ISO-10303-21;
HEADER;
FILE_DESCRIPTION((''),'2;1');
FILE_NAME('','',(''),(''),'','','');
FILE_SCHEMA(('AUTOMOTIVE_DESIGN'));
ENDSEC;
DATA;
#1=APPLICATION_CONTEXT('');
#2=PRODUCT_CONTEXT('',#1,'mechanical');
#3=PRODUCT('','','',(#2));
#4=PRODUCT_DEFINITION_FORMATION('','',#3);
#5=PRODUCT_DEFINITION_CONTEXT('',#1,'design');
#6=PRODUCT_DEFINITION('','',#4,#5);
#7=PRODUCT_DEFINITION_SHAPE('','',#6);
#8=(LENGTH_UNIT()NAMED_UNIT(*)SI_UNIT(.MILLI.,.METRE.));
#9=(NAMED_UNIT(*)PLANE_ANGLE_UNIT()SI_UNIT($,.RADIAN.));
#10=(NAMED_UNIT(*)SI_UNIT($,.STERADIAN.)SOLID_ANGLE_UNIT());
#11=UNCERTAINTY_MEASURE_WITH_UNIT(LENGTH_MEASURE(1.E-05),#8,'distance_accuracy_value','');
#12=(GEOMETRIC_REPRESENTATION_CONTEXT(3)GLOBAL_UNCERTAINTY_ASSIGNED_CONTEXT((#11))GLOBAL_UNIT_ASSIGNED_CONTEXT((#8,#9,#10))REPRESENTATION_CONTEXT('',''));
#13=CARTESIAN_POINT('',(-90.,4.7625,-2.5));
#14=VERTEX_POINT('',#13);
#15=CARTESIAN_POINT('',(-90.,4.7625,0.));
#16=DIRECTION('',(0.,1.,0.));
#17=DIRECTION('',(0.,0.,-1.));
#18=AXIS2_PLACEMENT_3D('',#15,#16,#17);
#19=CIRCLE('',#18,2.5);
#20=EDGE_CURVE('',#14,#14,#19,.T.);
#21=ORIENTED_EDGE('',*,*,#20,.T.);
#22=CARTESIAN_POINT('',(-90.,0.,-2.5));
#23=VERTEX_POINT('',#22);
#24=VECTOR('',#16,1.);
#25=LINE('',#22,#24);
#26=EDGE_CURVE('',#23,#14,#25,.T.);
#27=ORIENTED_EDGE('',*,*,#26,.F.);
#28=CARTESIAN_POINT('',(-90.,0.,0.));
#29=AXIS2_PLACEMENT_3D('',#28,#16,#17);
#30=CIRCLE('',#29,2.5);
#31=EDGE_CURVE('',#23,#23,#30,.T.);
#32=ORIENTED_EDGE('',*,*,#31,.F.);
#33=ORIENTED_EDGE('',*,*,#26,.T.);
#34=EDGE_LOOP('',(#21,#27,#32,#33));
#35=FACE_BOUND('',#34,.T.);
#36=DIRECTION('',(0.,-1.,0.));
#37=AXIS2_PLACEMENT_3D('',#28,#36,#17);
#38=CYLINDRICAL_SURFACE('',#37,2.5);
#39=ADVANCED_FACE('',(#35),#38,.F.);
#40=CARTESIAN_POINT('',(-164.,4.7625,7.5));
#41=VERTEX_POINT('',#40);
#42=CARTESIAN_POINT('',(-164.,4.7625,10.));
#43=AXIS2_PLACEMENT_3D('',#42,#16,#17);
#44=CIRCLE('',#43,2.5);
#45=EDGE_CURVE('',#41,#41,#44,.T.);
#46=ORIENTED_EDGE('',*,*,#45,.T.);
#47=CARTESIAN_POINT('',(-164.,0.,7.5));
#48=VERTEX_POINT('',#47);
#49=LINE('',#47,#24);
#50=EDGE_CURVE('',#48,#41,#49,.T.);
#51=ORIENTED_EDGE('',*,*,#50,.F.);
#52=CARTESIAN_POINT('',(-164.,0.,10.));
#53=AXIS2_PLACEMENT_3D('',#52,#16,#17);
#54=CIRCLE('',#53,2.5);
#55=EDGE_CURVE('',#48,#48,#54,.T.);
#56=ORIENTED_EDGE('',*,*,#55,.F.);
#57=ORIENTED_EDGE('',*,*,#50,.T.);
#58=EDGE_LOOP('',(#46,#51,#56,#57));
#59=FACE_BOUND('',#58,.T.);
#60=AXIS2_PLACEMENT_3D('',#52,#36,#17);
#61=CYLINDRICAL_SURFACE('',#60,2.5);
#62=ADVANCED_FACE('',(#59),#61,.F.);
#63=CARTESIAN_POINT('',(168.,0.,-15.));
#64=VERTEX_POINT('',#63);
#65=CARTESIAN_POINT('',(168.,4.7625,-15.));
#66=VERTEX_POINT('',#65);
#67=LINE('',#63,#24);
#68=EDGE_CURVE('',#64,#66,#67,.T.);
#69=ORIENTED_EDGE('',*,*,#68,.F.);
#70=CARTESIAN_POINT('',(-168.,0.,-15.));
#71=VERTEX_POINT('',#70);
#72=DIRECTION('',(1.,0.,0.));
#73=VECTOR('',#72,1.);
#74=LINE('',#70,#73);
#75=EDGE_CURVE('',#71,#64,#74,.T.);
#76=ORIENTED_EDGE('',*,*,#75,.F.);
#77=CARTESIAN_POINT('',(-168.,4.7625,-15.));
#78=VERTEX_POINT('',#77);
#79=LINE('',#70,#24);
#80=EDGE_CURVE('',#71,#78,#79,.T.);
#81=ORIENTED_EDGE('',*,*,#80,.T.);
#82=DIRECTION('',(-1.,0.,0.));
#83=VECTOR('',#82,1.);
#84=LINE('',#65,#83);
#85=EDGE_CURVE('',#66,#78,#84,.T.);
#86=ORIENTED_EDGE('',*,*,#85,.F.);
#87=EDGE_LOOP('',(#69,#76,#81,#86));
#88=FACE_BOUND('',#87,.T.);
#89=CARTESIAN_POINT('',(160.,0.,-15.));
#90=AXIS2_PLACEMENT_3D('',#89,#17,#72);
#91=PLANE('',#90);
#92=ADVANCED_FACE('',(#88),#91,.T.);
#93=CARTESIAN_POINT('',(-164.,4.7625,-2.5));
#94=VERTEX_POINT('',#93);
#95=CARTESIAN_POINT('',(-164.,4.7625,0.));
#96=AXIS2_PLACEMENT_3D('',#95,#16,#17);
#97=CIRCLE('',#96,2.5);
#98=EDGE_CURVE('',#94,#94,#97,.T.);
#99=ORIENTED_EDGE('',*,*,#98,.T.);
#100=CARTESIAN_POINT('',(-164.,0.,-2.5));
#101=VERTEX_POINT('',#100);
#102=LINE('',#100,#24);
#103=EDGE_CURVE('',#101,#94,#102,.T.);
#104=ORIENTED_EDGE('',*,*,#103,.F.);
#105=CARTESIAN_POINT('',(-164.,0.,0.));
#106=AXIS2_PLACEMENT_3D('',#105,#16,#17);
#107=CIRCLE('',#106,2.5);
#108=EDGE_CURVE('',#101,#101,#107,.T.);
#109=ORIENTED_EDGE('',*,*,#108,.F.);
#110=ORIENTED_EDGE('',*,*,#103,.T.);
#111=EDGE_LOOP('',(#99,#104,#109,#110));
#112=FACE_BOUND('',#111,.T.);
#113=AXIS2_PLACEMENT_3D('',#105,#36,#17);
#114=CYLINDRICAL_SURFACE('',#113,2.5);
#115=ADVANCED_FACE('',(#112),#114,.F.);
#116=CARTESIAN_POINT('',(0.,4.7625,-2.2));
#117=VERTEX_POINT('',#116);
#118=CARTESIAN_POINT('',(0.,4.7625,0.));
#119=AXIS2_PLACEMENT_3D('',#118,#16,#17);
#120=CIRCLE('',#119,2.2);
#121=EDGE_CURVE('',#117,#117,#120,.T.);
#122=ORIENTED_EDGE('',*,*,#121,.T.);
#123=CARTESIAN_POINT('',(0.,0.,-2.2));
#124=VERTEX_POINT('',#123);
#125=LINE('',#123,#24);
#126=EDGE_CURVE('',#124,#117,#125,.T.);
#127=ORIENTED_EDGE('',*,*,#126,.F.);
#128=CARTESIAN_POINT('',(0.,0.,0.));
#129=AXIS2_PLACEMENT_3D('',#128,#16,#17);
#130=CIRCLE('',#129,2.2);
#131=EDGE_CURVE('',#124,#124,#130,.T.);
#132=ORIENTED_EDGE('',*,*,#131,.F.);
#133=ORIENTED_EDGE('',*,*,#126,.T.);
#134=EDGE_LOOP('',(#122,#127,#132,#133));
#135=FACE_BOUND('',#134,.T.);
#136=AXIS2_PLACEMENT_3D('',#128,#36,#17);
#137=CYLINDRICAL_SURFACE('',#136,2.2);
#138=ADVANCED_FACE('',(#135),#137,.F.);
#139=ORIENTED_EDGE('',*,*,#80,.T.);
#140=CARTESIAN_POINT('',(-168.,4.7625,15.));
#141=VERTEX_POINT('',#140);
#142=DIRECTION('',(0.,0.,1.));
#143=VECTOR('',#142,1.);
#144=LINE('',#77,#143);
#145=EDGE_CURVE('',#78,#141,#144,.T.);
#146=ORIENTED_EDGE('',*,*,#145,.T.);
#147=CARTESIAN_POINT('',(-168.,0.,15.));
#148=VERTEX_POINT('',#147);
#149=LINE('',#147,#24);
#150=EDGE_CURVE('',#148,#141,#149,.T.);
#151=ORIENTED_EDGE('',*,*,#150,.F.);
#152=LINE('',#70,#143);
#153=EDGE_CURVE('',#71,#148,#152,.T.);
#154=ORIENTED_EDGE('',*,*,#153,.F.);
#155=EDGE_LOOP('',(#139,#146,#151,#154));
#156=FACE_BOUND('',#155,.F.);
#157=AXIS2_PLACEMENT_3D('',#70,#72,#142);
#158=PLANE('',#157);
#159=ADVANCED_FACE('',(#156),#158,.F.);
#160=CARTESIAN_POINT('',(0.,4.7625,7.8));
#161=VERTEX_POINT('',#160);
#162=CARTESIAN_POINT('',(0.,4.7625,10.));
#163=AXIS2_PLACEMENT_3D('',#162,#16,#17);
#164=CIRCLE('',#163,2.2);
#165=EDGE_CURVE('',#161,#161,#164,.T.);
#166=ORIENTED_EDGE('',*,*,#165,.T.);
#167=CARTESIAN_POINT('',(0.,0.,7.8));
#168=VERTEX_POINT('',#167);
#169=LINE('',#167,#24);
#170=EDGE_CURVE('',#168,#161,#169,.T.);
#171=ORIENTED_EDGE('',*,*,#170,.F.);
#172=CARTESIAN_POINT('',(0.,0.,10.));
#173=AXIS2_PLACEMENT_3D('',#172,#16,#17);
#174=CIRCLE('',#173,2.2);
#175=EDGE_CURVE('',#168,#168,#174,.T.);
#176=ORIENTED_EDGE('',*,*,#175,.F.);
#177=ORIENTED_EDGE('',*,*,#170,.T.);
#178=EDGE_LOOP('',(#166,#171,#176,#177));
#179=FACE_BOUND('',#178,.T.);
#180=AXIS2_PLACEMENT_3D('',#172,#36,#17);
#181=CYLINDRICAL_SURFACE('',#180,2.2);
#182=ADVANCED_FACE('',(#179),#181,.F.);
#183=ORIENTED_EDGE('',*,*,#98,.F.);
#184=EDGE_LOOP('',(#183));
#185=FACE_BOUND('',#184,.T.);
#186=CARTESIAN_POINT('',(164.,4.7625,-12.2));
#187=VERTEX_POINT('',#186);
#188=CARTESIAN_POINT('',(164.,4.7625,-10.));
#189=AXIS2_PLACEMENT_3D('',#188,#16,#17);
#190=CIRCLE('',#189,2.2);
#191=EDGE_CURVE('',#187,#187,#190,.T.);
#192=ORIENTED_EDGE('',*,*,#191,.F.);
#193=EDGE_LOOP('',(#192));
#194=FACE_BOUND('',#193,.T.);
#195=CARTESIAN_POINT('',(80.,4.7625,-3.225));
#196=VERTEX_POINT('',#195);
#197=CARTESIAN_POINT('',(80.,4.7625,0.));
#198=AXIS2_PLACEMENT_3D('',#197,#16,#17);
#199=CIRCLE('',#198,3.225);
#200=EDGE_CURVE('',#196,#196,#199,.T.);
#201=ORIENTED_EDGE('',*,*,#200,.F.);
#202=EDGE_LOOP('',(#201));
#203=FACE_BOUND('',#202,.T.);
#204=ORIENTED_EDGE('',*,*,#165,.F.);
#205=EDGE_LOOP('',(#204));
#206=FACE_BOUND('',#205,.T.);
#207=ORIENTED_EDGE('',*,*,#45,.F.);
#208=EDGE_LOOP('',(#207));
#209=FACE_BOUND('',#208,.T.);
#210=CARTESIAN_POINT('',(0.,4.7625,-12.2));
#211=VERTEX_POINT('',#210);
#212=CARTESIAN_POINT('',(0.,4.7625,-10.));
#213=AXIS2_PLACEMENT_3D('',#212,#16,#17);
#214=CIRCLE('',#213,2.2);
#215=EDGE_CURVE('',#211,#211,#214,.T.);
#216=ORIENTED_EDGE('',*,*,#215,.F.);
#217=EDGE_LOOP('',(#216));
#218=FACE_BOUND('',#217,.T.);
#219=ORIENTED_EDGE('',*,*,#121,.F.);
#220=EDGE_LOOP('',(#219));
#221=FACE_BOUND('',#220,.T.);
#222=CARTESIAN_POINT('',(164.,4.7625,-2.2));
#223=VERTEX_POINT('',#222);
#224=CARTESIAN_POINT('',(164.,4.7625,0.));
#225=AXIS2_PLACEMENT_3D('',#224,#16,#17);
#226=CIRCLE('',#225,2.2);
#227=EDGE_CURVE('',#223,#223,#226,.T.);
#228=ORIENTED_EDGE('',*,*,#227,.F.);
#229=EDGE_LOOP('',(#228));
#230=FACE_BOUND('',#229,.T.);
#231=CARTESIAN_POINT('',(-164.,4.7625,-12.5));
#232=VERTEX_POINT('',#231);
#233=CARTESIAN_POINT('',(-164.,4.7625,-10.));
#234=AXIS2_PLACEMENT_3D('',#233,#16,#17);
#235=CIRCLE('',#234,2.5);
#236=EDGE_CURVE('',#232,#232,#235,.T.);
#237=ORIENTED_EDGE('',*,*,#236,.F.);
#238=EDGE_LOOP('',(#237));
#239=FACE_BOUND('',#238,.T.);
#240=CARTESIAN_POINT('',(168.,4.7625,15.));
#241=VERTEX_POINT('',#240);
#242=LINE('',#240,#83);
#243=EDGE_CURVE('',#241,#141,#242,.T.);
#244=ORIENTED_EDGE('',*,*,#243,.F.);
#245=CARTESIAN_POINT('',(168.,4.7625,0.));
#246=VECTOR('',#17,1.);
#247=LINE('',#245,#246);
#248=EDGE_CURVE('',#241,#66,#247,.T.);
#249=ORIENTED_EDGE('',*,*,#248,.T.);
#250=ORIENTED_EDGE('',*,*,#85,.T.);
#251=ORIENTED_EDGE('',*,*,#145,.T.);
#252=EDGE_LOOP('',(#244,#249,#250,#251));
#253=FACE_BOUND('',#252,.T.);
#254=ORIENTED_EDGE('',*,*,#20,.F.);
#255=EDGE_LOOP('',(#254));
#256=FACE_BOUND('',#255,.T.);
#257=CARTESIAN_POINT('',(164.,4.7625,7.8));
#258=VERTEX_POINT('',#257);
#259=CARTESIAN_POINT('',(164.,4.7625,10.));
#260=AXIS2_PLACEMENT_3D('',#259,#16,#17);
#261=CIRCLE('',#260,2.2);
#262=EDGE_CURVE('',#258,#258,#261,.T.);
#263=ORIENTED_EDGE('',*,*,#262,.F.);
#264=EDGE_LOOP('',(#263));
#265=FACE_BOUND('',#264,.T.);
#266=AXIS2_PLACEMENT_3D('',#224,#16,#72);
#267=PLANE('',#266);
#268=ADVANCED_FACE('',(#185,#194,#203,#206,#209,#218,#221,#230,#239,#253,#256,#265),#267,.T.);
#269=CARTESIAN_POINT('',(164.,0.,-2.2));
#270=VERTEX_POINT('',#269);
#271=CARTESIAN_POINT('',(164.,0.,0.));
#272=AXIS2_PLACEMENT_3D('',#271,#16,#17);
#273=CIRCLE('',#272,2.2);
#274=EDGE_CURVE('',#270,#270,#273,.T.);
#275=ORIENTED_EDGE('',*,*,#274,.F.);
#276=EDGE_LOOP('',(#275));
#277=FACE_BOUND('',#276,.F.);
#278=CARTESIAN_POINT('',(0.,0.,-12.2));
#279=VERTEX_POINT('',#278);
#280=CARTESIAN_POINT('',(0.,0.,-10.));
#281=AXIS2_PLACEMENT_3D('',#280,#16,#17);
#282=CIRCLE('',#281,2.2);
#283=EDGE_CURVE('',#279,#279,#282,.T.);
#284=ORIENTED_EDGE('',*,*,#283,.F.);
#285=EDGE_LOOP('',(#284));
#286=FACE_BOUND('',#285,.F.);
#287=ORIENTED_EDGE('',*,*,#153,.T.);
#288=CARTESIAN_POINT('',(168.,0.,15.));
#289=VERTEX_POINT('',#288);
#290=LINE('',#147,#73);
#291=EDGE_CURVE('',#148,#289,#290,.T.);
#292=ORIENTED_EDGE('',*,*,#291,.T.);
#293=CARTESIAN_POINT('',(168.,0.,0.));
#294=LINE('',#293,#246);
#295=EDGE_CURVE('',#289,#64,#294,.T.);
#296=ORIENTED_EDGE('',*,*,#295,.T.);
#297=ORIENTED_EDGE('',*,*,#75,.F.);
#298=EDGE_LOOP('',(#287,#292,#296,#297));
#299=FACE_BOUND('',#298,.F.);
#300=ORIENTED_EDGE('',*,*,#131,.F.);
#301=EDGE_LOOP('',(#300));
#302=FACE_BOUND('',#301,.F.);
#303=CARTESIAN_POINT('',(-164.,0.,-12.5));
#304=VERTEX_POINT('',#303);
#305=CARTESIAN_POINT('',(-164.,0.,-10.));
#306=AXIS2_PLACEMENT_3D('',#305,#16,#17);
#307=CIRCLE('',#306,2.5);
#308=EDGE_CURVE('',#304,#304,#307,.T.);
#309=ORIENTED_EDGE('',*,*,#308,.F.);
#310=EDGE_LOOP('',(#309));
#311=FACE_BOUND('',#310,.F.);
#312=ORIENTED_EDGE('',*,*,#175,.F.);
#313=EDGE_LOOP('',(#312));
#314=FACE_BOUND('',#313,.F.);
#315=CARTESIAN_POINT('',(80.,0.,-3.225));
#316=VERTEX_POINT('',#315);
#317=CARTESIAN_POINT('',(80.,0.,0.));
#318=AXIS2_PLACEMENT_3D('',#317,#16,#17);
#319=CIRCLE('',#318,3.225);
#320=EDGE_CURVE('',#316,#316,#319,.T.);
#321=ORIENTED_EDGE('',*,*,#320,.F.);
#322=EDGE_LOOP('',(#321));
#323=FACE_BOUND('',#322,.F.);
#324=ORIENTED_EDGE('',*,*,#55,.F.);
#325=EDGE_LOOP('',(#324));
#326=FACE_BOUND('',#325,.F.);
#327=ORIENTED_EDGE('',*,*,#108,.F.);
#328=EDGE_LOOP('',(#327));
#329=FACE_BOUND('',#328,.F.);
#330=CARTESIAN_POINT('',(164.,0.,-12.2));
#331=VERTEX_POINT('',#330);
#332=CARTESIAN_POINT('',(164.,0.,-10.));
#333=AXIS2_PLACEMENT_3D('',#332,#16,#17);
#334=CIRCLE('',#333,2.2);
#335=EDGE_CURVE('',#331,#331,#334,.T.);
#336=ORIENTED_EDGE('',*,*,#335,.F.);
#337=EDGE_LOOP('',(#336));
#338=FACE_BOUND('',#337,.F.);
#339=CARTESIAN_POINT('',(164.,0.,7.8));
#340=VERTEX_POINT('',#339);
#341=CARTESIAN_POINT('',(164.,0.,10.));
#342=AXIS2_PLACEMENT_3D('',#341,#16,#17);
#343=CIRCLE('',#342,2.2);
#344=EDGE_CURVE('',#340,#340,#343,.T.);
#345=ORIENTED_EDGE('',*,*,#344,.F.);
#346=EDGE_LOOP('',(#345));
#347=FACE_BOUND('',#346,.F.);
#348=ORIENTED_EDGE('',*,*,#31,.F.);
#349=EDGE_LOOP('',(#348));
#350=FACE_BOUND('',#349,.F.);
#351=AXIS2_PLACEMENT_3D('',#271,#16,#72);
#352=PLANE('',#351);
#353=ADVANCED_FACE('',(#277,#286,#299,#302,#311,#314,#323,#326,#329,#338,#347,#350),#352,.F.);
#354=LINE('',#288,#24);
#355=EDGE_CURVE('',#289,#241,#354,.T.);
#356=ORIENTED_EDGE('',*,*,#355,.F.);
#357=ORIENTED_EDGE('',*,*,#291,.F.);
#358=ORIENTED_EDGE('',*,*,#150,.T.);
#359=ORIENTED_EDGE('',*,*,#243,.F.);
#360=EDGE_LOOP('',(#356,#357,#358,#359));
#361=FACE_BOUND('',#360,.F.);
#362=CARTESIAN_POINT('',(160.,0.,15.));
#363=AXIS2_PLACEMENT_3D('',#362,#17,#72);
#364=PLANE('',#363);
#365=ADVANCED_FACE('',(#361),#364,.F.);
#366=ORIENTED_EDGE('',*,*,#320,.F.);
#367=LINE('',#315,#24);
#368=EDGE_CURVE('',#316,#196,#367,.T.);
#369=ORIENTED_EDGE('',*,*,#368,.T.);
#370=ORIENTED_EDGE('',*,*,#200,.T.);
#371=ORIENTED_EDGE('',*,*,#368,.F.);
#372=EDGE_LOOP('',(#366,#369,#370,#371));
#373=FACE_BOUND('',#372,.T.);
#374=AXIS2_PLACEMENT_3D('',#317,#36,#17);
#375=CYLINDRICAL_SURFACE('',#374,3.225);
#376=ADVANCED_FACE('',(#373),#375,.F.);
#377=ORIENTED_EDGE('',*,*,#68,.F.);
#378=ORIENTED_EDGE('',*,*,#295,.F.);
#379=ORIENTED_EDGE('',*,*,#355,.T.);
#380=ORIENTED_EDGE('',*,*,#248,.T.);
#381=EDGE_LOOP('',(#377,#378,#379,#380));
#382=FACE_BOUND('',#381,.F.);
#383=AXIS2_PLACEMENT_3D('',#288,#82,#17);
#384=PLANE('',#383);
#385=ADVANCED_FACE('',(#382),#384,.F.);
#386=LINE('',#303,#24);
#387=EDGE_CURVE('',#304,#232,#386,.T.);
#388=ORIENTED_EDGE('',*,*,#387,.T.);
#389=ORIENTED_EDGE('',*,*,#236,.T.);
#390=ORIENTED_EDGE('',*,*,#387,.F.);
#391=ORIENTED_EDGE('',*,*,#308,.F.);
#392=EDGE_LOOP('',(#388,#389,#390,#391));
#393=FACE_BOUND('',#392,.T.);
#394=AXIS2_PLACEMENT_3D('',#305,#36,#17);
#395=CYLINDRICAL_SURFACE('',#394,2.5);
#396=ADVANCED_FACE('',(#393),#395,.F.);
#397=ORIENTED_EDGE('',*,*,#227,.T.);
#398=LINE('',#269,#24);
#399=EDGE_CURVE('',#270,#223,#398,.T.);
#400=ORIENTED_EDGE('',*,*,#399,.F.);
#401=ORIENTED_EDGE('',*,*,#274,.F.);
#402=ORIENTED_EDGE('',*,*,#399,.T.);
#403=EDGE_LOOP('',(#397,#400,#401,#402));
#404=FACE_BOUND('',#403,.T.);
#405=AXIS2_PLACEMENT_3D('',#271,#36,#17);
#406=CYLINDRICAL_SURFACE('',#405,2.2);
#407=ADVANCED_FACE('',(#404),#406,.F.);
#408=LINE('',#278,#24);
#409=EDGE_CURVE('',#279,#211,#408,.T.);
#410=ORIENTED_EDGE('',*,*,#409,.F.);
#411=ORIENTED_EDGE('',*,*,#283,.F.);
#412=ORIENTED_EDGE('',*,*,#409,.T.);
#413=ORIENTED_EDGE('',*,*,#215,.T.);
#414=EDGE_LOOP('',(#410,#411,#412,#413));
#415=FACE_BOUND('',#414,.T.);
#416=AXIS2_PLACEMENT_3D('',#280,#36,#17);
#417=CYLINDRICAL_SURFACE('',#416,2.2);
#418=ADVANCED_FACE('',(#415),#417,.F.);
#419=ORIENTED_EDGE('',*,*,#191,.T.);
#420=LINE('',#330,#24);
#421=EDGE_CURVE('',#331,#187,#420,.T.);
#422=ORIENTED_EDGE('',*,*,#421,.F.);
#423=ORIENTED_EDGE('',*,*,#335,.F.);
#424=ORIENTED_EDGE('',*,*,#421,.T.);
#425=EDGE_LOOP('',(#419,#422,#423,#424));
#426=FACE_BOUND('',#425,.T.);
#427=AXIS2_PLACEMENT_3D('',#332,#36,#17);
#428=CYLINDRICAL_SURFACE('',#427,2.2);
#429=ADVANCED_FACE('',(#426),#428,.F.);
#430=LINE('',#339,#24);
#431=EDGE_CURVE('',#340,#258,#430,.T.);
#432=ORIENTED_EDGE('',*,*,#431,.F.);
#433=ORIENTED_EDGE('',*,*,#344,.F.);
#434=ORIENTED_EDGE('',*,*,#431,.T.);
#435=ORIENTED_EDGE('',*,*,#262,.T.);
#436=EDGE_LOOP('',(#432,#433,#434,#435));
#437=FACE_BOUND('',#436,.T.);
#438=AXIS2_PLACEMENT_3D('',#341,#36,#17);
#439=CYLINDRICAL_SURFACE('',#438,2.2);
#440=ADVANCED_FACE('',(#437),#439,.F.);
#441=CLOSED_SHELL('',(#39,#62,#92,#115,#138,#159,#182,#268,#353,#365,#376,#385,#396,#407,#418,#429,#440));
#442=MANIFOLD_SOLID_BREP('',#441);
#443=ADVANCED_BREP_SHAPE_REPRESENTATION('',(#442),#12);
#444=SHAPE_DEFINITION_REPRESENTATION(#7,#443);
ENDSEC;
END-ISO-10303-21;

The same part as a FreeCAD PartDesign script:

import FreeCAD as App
import Part
import Sketcher

doc = App.newDocument("Part")
params = doc.addObject("Spreadsheet::Sheet", "Params")
for row, (alias, value) in enumerate([
    ("sketch1_diameter", "5 mm"),
    ("sketch1_diameter2", "4.4 mm"),
    ("sketch1_diameter3", "6.45 mm"),
    ("sketch1_width", "336 mm"),
    ("sketch1_height", "30 mm"),
    ("pad1_length", "4.7625 mm"),
], start=1):
    params.set(f"A{row}", alias)
    params.set(f"B{row}", "=" + value)
    params.setAlias(f"B{row}", alias)

body = doc.addObject("PartDesign::Body", "Body")

# Sketch on XZ plane
sketch1 = body.newObject("Sketcher::SketchObject", "Sketch")
sketch1.AttachmentSupport = (doc.getObject("XZ_Plane"), [""])
sketch1.MapMode = "FlatFace"
sketch1.addGeometry(Part.LineSegment(App.Vector(-168, 15, 0), App.Vector(168, 15, 0)), False)
sketch1.addGeometry(Part.LineSegment(App.Vector(168, 15, 0), App.Vector(168, -15, 0)), False)
sketch1.addGeometry(Part.LineSegment(App.Vector(168, -15, 0), App.Vector(-168, -15, 0)), False)
sketch1.addGeometry(Part.LineSegment(App.Vector(-168, -15, 0), App.Vector(-168, 15, 0)), False)
sketch1.addGeometry(Part.Circle(App.Vector(-164, 10, 0), App.Vector(0, 0, 1), 2.5), False)
sketch1.addGeometry(Part.Circle(App.Vector(0, 10, 0), App.Vector(0, 0, 1), 2.2), False)
sketch1.addGeometry(Part.Circle(App.Vector(-164, 0, 0), App.Vector(0, 0, 1), 2.5), False)
sketch1.addGeometry(Part.Circle(App.Vector(-90, 0, 0), App.Vector(0, 0, 1), 2.5), False)
sketch1.addGeometry(Part.Circle(App.Vector(-164, -10, 0), App.Vector(0, 0, 1), 2.5), False)
sketch1.addGeometry(Part.Circle(App.Vector(0, 0, 0), App.Vector(0, 0, 1), 2.2), False)
sketch1.addGeometry(Part.Circle(App.Vector(80, 0, 0), App.Vector(0, 0, 1), 3.225), False)
sketch1.addGeometry(Part.Circle(App.Vector(0, -10, 0), App.Vector(0, 0, 1), 2.2), False)
sketch1.addGeometry(Part.Circle(App.Vector(164, -10, 0), App.Vector(0, 0, 1), 2.2), False)
sketch1.addGeometry(Part.Circle(App.Vector(164, 10, 0), App.Vector(0, 0, 1), 2.2), False)
sketch1.addGeometry(Part.Circle(App.Vector(164, 0, 0), App.Vector(0, 0, 1), 2.2), False)
sketch1.addConstraint(Sketcher.Constraint("Coincident", 0, 2, 1, 1))
sketch1.addConstraint(Sketcher.Constraint("Coincident", 1, 2, 2, 1))
sketch1.addConstraint(Sketcher.Constraint("Coincident", 2, 2, 3, 1))
sketch1.addConstraint(Sketcher.Constraint("Coincident", 3, 2, 0, 1))
sketch1.addConstraint(Sketcher.Constraint("Horizontal", 0))
sketch1.addConstraint(Sketcher.Constraint("Vertical", 1))
sketch1.addConstraint(Sketcher.Constraint("Horizontal", 2))
sketch1.addConstraint(Sketcher.Constraint("Vertical", 3))
sketch1.addConstraint(Sketcher.Constraint("Coincident", 9, 3, -1, 1))
sketch1.addConstraint(Sketcher.Constraint("Equal", 4, 6))
sketch1.addConstraint(Sketcher.Constraint("Equal", 6, 7))
sketch1.addConstraint(Sketcher.Constraint("Equal", 7, 8))
sketch1.addConstraint(Sketcher.Constraint("Equal", 5, 9))
sketch1.addConstraint(Sketcher.Constraint("Equal", 9, 11))
sketch1.addConstraint(Sketcher.Constraint("Equal", 11, 12))
sketch1.addConstraint(Sketcher.Constraint("Equal", 12, 13))
sketch1.addConstraint(Sketcher.Constraint("Equal", 13, 14))
sketch1.addConstraint(Sketcher.Constraint("Symmetric", 5, 3, 11, 3, -1, 1))
sketch1.addConstraint(Sketcher.Constraint("Symmetric", 4, 3, 12, 3, -1, 1))
sketch1.addConstraint(Sketcher.Constraint("Symmetric", 8, 3, 13, 3, -1, 1))
sketch1.addConstraint(Sketcher.Constraint("Symmetric", 6, 3, 14, 3, -1, 1))
sketch1.addConstraint(Sketcher.Constraint("Symmetric", 0, 2, 2, 2, -1, 1))
sketch1.addConstraint(Sketcher.Constraint("Symmetric", 8, 3, 12, 3, -2))
sketch1.addConstraint(Sketcher.Constraint("PointOnObject", 5, 3, -2))
sketch1.addConstraint(Sketcher.Constraint("PointOnObject", 6, 3, -1))
sketch1.addConstraint(Sketcher.Constraint("PointOnObject", 7, 3, -1))
sketch1.addConstraint(Sketcher.Constraint("PointOnObject", 10, 3, -1))
sketch1.addConstraint(Sketcher.Constraint("Horizontal", 4, 3, 5, 3))
sketch1.addConstraint(Sketcher.Constraint("Vertical", 4, 3, 6, 3))
sketch1.addConstraint(Sketcher.Constraint("Diameter", 4, 5.0))
sketch1.addConstraint(Sketcher.Constraint("Diameter", 5, 4.4))
sketch1.addConstraint(Sketcher.Constraint("Diameter", 10, 6.45))
sketch1.addConstraint(Sketcher.Constraint("DistanceX", 0, 1, 0, 2, 336.0))
sketch1.addConstraint(Sketcher.Constraint("DistanceY", 1, 2, 1, 1, 30.0))
sketch1.addConstraint(Sketcher.Constraint("DistanceX", 4, 3, -1, 1, 164.0))
sketch1.addConstraint(Sketcher.Constraint("DistanceY", -1, 1, 4, 3, 10.0))
sketch1.addConstraint(Sketcher.Constraint("DistanceX", 7, 3, -1, 1, 90.0))
sketch1.addConstraint(Sketcher.Constraint("DistanceX", -1, 1, 10, 3, 80.0))
sketch1.setExpression("Constraints[29]", "Params.sketch1_diameter")
sketch1.setExpression("Constraints[30]", "Params.sketch1_diameter2")
sketch1.setExpression("Constraints[31]", "Params.sketch1_diameter3")
sketch1.setExpression("Constraints[32]", "Params.sketch1_width")
sketch1.setExpression("Constraints[33]", "Params.sketch1_height")
pad1 = body.newObject("PartDesign::Pad", "Pad")
pad1.Profile = sketch1
pad1.setExpression("Length", "Params.pad1_length")
pad1.Reversed = True

doc.recompute()
